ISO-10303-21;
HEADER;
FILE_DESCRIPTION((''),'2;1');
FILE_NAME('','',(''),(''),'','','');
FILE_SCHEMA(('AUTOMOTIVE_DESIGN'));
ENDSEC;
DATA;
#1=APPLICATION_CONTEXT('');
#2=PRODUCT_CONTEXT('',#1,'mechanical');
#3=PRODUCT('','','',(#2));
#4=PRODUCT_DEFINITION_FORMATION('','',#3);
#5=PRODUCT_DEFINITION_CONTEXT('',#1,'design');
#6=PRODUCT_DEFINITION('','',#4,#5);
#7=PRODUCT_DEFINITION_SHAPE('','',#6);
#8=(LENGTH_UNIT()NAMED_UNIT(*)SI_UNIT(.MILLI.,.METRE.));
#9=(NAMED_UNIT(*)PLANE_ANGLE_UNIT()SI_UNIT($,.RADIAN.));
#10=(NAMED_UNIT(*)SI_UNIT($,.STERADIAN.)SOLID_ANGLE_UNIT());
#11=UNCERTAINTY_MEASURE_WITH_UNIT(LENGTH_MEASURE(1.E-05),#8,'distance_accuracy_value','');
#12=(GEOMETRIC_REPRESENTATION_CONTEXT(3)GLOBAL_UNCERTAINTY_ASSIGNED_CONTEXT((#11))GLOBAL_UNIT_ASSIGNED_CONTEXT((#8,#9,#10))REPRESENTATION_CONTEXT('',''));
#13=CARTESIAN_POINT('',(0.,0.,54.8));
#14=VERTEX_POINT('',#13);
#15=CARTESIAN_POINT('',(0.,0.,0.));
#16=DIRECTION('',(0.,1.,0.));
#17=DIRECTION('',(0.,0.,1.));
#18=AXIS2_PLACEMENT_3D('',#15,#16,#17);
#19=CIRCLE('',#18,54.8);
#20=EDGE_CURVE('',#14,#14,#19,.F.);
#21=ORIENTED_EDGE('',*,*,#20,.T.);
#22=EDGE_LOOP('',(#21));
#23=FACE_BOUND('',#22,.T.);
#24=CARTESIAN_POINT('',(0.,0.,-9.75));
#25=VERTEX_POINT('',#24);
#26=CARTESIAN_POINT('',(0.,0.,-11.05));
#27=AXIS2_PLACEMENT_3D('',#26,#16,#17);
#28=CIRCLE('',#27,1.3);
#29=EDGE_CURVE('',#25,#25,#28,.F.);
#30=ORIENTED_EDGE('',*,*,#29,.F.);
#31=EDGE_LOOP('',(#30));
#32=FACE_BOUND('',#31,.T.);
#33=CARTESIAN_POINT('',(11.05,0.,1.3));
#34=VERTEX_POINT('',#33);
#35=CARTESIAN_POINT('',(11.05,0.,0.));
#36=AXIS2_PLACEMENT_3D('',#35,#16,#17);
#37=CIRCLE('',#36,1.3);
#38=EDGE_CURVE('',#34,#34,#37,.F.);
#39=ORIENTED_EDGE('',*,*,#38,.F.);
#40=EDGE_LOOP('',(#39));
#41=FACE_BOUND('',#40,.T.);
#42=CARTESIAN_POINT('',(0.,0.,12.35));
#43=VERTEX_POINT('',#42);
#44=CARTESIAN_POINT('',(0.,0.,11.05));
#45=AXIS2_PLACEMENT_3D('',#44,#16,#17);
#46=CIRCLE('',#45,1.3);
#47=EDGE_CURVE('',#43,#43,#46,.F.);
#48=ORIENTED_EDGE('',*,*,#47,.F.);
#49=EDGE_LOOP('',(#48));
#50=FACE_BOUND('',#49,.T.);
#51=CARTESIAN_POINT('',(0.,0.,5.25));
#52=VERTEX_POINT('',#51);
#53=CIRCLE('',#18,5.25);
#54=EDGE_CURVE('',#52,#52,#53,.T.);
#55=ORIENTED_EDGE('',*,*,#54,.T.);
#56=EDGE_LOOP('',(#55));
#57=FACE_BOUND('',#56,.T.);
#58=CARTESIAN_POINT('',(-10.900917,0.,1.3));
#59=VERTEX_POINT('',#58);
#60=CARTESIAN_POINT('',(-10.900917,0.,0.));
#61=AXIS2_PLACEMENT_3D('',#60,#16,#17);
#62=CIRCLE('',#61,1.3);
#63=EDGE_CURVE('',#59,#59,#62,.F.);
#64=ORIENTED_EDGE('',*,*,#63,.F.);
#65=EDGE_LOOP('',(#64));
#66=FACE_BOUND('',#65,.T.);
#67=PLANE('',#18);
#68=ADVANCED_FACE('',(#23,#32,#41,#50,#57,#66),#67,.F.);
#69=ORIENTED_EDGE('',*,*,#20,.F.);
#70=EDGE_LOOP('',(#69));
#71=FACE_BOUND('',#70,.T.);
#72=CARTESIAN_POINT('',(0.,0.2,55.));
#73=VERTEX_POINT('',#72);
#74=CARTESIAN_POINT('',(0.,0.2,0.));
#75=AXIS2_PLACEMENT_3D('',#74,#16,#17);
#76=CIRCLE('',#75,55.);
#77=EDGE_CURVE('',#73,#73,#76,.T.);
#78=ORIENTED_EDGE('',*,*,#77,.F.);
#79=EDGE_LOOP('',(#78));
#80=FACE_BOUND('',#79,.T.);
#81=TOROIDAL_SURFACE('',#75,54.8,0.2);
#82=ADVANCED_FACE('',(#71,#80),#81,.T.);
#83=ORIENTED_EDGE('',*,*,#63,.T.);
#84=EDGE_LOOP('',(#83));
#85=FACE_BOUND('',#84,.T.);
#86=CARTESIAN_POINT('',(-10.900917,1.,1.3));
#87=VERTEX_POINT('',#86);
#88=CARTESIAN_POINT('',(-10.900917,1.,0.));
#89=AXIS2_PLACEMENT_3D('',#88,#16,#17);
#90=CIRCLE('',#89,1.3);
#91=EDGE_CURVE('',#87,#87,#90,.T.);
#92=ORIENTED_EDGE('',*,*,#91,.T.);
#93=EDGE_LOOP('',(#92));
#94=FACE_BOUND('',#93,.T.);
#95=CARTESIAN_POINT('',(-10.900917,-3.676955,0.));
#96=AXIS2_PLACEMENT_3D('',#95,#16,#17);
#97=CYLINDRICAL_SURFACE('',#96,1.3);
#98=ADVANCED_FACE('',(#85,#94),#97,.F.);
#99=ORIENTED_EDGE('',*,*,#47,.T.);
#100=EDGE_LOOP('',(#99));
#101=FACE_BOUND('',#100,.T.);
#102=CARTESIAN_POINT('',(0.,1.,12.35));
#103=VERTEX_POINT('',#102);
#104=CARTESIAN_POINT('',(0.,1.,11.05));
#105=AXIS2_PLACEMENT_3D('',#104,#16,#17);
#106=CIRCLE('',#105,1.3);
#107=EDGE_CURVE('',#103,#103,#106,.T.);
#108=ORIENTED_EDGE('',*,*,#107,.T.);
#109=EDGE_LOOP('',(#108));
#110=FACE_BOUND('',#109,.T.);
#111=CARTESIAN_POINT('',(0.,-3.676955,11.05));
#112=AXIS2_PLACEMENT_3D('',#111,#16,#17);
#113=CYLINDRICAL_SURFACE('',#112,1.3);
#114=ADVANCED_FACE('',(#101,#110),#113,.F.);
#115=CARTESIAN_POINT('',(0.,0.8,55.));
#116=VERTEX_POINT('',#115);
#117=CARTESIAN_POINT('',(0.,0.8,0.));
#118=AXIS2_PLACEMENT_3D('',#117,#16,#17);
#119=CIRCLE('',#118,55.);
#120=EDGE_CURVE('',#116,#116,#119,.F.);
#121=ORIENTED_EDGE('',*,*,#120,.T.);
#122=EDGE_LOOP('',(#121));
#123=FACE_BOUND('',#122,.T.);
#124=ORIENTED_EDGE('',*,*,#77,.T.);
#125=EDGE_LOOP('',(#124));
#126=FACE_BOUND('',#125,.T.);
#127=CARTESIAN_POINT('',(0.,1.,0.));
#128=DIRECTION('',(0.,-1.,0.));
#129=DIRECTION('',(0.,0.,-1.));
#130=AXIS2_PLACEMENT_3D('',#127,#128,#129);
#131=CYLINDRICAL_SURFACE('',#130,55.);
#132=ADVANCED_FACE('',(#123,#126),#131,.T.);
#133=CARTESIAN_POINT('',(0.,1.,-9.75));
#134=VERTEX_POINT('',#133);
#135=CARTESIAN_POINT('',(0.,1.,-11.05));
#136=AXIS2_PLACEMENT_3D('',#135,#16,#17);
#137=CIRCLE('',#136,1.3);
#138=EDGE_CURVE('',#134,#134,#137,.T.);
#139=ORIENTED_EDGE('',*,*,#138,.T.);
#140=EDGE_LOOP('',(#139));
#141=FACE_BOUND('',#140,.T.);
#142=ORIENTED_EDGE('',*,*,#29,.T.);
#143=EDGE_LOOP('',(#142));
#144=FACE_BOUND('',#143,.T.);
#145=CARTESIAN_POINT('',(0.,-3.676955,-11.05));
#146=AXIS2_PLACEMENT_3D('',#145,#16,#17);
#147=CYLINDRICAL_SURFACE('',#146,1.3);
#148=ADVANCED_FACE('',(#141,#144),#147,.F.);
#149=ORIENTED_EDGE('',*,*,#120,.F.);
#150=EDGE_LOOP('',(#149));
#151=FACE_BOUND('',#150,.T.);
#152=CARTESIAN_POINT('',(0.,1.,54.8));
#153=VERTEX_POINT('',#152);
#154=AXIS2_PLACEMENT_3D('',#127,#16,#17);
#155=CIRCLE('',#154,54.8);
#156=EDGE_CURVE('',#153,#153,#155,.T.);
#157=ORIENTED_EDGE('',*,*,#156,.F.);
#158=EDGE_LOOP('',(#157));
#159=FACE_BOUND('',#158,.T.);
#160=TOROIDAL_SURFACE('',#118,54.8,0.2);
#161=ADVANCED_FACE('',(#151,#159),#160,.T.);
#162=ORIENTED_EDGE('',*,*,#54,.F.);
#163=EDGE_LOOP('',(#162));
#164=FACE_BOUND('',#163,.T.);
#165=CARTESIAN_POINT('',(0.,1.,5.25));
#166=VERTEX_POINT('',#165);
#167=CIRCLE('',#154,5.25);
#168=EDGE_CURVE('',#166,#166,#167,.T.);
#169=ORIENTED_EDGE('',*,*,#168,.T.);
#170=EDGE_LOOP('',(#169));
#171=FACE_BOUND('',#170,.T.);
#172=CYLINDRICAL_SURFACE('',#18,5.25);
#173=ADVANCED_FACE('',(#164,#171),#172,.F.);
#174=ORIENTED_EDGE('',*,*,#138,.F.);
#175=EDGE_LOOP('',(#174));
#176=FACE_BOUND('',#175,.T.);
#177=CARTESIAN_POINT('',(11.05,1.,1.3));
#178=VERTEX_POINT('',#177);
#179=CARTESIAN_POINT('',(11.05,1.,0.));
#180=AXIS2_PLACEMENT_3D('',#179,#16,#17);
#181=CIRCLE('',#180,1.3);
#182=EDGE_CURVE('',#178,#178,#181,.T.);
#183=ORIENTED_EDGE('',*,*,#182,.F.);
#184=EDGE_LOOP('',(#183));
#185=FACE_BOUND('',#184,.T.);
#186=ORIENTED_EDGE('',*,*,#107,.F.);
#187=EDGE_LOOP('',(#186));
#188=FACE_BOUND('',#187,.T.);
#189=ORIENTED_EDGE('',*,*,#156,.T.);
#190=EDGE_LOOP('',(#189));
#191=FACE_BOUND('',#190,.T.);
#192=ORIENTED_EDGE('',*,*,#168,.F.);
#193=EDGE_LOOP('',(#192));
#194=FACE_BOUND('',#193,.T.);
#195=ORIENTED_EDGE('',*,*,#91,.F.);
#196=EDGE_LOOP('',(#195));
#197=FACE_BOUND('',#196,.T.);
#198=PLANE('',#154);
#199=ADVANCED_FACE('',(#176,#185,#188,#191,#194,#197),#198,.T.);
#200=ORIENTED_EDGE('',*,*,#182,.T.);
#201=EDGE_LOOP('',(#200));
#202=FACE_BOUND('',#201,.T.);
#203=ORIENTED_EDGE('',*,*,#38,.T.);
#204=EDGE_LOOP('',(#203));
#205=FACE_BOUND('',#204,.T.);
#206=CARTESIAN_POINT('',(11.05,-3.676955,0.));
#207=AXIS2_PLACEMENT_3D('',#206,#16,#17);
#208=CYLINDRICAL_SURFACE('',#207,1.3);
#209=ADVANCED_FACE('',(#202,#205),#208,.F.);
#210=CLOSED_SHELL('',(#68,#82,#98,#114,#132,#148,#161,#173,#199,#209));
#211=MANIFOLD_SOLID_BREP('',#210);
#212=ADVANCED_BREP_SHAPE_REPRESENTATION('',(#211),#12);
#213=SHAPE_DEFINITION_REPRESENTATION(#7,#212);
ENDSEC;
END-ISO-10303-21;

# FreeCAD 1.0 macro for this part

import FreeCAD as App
import Part
import Sketcher


def edges_at(feature, points):
    """Names of the edges that pass closest to the given points."""
    edges = feature.Shape.Edges
    near = lambda p: min(range(len(edges)), key=lambda i: edges[i].distToShape(Part.Vertex(*p))[0])
    return sorted({f"Edge{near(p) + 1}" for p in points})

doc = App.newDocument("Part")
body = doc.addObject("PartDesign::Body", "Body")

# Sketch on XZ plane
sketch1 = doc.addObject("Sketcher::SketchObject", "Sketch")
body.addObject(sketch1)
sketch1.AttachmentSupport = (doc.XZ_Plane, [""])
sketch1.MapMode = "FlatFace"
sketch1.addGeometry(Part.Circle(App.Vector(0, 0, 0), App.Vector(0, 0, 1), 55), False)
sketch1.addConstraint(Sketcher.Constraint("Coincident", 0, 3, -1, 1))
sketch1.addConstraint(Sketcher.Constraint("Diameter", 0, 110.0))
pad1 = doc.addObject("PartDesign::Pad", "Pad")
body.addObject(pad1)
pad1.Profile = sketch1
pad1.Length = 1
pad1.Reversed = True
doc.recompute()

fillet = doc.addObject("PartDesign::Fillet", "Fillet")
body.addObject(fillet)
fillet.Base = (pad1, edges_at(pad1, [(0, 0, -55), (0, 1, -55)]))
fillet.Radius = 0.2

# Sketch on XZ plane
sketch2 = doc.addObject("Sketcher::SketchObject", "Sketch001")
body.addObject(sketch2)
sketch2.AttachmentSupport = (doc.XZ_Plane, [""])
sketch2.MapMode = "FlatFace"
sketch2.AttachmentOffset = App.Placement(App.Vector(0, 0, -1), App.Rotation())
sketch2.addGeometry(Part.Circle(App.Vector(0, 0, 0), App.Vector(0, 0, 1), 5), False)
sketch2.addConstraint(Sketcher.Constraint("Coincident", 0, 3, -1, 1))
sketch2.addConstraint(Sketcher.Constraint("Diameter", 0, 10.5))
pocket1 = doc.addObject("PartDesign::Pocket", "Pocket")
body.addObject(pocket1)
pocket1.Profile = sketch2
pocket1.Type = "ThroughAll"
pocket1.Reversed = True

# Sketch on XZ plane
sketch3 = doc.addObject("Sketcher::SketchObject", "Sketch002")
body.addObject(sketch3)
sketch3.AttachmentSupport = (doc.XZ_Plane, [""])
sketch3.MapMode = "FlatFace"
sketch3.AttachmentOffset = App.Placement(App.Vector(0, 0, -1), App.Rotation())
sketch3.addGeometry(Part.Circle(App.Vector(-10.9, 0, 0), App.Vector(0, 0, 1), 1.3), False)
sketch3.addGeometry(Part.Circle(App.Vector(0, -11.1, 0), App.Vector(0, 0, 1), 1.3), False)
sketch3.addGeometry(Part.Circle(App.Vector(11.1, 0, 0), App.Vector(0, 0, 1), 1.3), False)
sketch3.addGeometry(Part.Circle(App.Vector(0, 11.1, 0), App.Vector(0, 0, 1), 1.3), False)
sketch3.addConstraint(Sketcher.Constraint("Equal", 0, 1))
sketch3.addConstraint(Sketcher.Constraint("Equal", 1, 2))
sketch3.addConstraint(Sketcher.Constraint("Equal", 2, 3))
sketch3.addConstraint(Sketcher.Constraint("Symmetric", 1, 3, 3, 3, -1, 1))
sketch3.addConstraint(Sketcher.Constraint("PointOnObject", 0, 3, -1))
sketch3.addConstraint(Sketcher.Constraint("PointOnObject", 1, 3, -2))
sketch3.addConstraint(Sketcher.Constraint("PointOnObject", 2, 3, -1))
sketch3.addConstraint(Sketcher.Constraint("Diameter", 0, 2.6))
sketch3.addConstraint(Sketcher.Constraint("DistanceY", 1, 3, 3, 3, 22.1))
sketch3.addConstraint(Sketcher.Constraint("DistanceX", -1, 1, 2, 3, 11.05))
sketch3.addConstraint(Sketcher.Constraint("DistanceX", 0, 3, -1, 1, 10.900917))
pocket2 = doc.addObject("PartDesign::Pocket", "Pocket001")
body.addObject(pocket2)
pocket2.Profile = sketch3
pocket2.Length = 1
pocket2.Reversed = True

doc.recompute()
